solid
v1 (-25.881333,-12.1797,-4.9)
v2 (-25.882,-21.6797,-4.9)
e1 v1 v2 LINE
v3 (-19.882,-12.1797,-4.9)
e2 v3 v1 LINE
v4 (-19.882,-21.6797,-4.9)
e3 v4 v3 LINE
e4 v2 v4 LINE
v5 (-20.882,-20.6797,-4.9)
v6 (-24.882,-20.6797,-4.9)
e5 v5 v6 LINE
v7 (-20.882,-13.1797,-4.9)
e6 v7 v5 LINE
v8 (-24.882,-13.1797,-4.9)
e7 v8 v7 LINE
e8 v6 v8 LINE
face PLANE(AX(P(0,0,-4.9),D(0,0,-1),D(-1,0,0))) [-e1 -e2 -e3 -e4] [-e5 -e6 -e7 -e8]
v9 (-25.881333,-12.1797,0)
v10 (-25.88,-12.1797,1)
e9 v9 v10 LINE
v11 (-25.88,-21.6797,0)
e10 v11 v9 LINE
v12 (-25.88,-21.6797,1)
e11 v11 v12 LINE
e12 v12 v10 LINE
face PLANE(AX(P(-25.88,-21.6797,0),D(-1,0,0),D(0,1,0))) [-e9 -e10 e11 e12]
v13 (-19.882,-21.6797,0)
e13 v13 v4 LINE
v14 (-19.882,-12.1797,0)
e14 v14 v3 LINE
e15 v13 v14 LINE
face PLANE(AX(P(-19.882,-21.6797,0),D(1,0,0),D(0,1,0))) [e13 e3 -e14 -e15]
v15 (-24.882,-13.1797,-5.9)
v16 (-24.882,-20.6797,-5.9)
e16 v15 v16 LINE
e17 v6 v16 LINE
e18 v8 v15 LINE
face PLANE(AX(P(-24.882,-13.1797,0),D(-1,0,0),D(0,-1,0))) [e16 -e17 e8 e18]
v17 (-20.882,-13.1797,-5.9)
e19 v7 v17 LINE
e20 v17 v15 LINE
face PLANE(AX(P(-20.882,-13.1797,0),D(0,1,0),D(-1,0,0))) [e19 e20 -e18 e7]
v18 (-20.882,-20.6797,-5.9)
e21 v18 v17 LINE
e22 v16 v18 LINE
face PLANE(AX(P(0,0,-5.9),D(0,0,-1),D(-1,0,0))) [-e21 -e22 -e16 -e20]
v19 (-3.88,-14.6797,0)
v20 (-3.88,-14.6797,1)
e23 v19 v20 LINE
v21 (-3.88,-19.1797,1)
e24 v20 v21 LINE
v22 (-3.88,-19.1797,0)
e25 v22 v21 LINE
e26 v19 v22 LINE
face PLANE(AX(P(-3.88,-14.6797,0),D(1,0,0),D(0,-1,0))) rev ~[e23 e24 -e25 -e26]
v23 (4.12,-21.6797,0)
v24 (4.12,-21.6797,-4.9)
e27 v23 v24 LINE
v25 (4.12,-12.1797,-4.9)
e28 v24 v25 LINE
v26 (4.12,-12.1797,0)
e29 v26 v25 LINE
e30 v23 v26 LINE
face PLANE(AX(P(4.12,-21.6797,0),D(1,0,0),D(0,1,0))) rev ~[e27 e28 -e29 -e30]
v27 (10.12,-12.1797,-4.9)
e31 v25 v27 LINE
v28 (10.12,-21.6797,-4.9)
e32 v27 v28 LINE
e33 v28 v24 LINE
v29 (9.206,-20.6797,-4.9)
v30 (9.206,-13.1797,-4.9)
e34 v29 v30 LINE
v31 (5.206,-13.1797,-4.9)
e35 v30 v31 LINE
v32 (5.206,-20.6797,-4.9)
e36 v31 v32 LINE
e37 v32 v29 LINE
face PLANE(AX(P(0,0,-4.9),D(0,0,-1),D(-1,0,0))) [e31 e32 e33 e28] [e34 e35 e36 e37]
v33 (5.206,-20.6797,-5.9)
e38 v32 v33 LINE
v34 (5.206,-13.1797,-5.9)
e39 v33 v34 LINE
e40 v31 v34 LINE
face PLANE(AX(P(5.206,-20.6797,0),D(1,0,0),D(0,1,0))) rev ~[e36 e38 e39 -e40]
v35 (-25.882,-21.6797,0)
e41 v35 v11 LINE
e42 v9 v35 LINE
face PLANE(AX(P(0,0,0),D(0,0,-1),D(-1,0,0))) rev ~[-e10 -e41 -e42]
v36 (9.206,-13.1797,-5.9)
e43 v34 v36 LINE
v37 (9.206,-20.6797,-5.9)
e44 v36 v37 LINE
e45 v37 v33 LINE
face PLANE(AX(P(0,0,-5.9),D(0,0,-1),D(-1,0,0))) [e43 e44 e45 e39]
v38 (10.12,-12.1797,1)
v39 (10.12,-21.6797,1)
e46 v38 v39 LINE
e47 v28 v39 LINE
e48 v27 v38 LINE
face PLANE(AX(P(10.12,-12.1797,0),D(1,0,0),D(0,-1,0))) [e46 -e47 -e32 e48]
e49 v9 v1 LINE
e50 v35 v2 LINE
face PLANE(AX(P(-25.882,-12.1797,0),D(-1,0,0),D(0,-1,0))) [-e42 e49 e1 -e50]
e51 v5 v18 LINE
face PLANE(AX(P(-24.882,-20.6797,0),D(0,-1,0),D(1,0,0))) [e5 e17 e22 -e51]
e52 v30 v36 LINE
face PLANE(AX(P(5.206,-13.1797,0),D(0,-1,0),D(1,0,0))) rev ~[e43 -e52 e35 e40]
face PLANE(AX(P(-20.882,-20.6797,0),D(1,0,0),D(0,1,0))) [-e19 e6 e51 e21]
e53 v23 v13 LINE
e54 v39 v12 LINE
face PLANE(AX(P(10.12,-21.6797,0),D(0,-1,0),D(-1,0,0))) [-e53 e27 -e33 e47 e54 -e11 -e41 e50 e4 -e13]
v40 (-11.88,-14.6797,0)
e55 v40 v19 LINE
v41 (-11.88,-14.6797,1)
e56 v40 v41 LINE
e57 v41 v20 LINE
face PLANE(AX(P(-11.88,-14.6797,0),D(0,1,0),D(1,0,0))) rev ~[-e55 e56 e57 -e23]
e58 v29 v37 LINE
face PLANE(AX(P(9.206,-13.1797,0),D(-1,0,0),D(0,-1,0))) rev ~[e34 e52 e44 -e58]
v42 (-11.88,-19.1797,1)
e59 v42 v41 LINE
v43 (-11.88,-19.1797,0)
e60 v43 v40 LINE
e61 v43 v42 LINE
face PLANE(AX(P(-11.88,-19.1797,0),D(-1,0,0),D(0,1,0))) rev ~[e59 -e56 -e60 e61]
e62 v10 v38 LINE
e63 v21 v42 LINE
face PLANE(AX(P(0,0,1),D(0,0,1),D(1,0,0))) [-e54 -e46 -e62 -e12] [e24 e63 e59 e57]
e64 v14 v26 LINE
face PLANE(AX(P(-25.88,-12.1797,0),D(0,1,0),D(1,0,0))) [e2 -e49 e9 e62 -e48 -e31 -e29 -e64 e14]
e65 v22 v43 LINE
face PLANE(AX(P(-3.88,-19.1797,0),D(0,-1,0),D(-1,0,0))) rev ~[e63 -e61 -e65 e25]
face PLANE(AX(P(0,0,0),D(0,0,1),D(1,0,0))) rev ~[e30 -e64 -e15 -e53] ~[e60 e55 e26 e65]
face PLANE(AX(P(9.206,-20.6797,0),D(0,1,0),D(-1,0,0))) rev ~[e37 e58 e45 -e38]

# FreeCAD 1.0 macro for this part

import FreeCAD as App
import Part
import Sketcher
from FreeCAD import Vector

doc = App.newDocument("Part")
body = doc.addObject("PartDesign::Body", "Body")

# Sketch on XY plane
sketch1 = doc.addObject("Sketcher::SketchObject", "Sketch")
body.addObject(sketch1)
sketch1.AttachmentSupport = (doc.XY_Plane, [""])
sketch1.MapMode = "FlatFace"
sketch1.addGeometry([
    Part.LineSegment(Vector(-25.9, -21.7, 0), Vector(10.1, -21.7, 0)),  # 0
    Part.LineSegment(Vector(10.1, -21.7, 0), Vector(10.1, -12.2, 0)),  # 1
    Part.LineSegment(Vector(10.1, -12.2, 0), Vector(-25.9, -12.2, 0)),  # 2
    Part.LineSegment(Vector(-25.9, -12.2, 0), Vector(-25.9, -21.7, 0)),  # 3
    Part.LineSegment(Vector(-3.9, -14.7, 0), Vector(-3.9, -19.2, 0)),  # 4
    Part.LineSegment(Vector(-3.9, -19.2, 0), Vector(-11.9, -19.2, 0)),  # 5
    Part.LineSegment(Vector(-11.9, -19.2, 0), Vector(-11.9, -14.7, 0)),  # 6
    Part.LineSegment(Vector(-11.9, -14.7, 0), Vector(-3.9, -14.7, 0)),  # 7
], False)
sketch1.addConstraint([
    Sketcher.Constraint("Coincident", 0, 2, 1, 1),
    Sketcher.Constraint("Coincident", 1, 2, 2, 1),
    Sketcher.Constraint("Coincident", 2, 2, 3, 1),
    Sketcher.Constraint("Coincident", 3, 2, 0, 1),
    Sketcher.Constraint("Coincident", 4, 2, 5, 1),
    Sketcher.Constraint("Coincident", 5, 2, 6, 1),
    Sketcher.Constraint("Coincident", 6, 2, 7, 1),
    Sketcher.Constraint("Coincident", 7, 2, 4, 1),
    Sketcher.Constraint("Horizontal", 0),
    Sketcher.Constraint("Vertical", 1),
    Sketcher.Constraint("Horizontal", 2),
    Sketcher.Constraint("Vertical", 3),
    Sketcher.Constraint("Vertical", 4),
    Sketcher.Constraint("Horizontal", 5),
    Sketcher.Constraint("Vertical", 6),
    Sketcher.Constraint("Horizontal", 7),
    Sketcher.Constraint("DistanceX", 0, 1, 0, 2, 36.0),
    Sketcher.Constraint("DistanceX", 5, 2, 5, 1, 8.0),
    Sketcher.Constraint("DistanceY", 1, 1, 1, 2, 9.5),
    Sketcher.Constraint("DistanceY", 4, 2, 4, 1, 4.5),
    Sketcher.Constraint("DistanceX", 4, 2, 0, 2, 14.0),
    Sketcher.Constraint("DistanceY", 4, 2, 1, 2, 7.0),
    Sketcher.Constraint("DistanceX", -1, 1, 0, 2, 10.12),
    Sketcher.Constraint("DistanceY", 0, 2, -1, 1, 21.6797),
])
pad1 = doc.addObject("PartDesign::Pad", "Pad")
body.addObject(pad1)
pad1.Profile = sketch1
pad1.Length = 1

# Sketch on XY plane
sketch2 = doc.addObject("Sketcher::SketchObject", "Sketch001")
body.addObject(sketch2)
sketch2.AttachmentSupport = (doc.XY_Plane, [""])
sketch2.MapMode = "FlatFace"
sketch2.addGeometry([
    Part.LineSegment(Vector(4, -22, 0), Vector(4, -12, 0)),  # 0
    Part.LineSegment(Vector(4, -12, 0), Vector(10, -12, 0)),  # 1
    Part.LineSegment(Vector(10, -12, 0), Vector(10, -22, 0)),  # 2
    Part.LineSegment(Vector(10, -22, 0), Vector(4, -22, 0)),  # 3
    Part.LineSegment(Vector(-20, -12, 0), Vector(-20, -22, 0)),  # 4
    Part.LineSegment(Vector(-20, -22, 0), Vector(-26, -22, 0)),  # 5
    Part.LineSegment(Vector(-26, -22, 0), Vector(-26, -12, 0)),  # 6
    Part.LineSegment(Vector(-26, -12, 0), Vector(-20, -12, 0)),  # 7
], False)
sketch2.addConstraint([
    Sketcher.Constraint("Coincident", 0, 2, 1, 1),
    Sketcher.Constraint("Coincident", 1, 2, 2, 1),
    Sketcher.Constraint("Coincident", 2, 2, 3, 1),
    Sketcher.Constraint("Coincident", 3, 2, 0, 1),
    Sketcher.Constraint("Coincident", 4, 2, 5, 1),
    Sketcher.Constraint("Coincident", 5, 2, 6, 1),
    Sketcher.Constraint("Coincident", 6, 2, 7, 1),
    Sketcher.Constraint("Coincident", 7, 2, 4, 1),
    Sketcher.Constraint("Vertical", 0),
    Sketcher.Constraint("Horizontal", 1),
    Sketcher.Constraint("Vertical", 2),
    Sketcher.Constraint("Horizontal", 3),
    Sketcher.Constraint("Vertical", 4),
    Sketcher.Constraint("Horizontal", 5),
    Sketcher.Constraint("Vertical", 6),
    Sketcher.Constraint("Horizontal", 7),
    Sketcher.Constraint("Horizontal", 3, 2, 4, 2),
    Sketcher.Constraint("Horizontal", 1, 2, 6, 2),
    Sketcher.Constraint("Equal", 3, 5),
    Sketcher.Constraint("DistanceX", 1, 1, 1, 2, 6.0),
    Sketcher.Constraint("DistanceY", 0, 1, 0, 2, 9.5),
    Sketcher.Constraint("DistanceX", -1, 1, 0, 2, 4.12),
    Sketcher.Constraint("DistanceX", 4, 2, -1, 1, 19.882),
    Sketcher.Constraint("DistanceY", 0, 2, -1, 1, 12.1797),
])
pad2 = doc.addObject("PartDesign::Pad", "Pad001")
body.addObject(pad2)
pad2.Profile = sketch2
pad2.Length = 4.9
pad2.Reversed = True

# Sketch on XY plane
sketch3 = doc.addObject("Sketcher::SketchObject", "Sketch002")
body.addObject(sketch3)
sketch3.AttachmentSupport = (doc.XY_Plane, [""])
sketch3.MapMode = "FlatFace"
sketch3.addGeometry([
    Part.LineSegment(Vector(-20.9, -20.7, 0), Vector(-24.9, -20.7, 0)),  # 0
    Part.LineSegment(Vector(-24.9, -20.7, 0), Vector(-24.9, -13.2, 0)),  # 1
    Part.LineSegment(Vector(-24.9, -13.2, 0), Vector(-20.9, -13.2, 0)),  # 2
    Part.LineSegment(Vector(-20.9, -13.2, 0), Vector(-20.9, -20.7, 0)),  # 3
    Part.LineSegment(Vector(9.2, -13.2, 0), Vector(9.2, -20.7, 0)),  # 4
    Part.LineSegment(Vector(9.2, -20.7, 0), Vector(5.2, -20.7, 0)),  # 5
    Part.LineSegment(Vector(5.2, -20.7, 0), Vector(5.2, -13.2, 0)),  # 6
    Part.LineSegment(Vector(5.2, -13.2, 0), Vector(9.2, -13.2, 0)),  # 7
], False)
sketch3.addConstraint([
    Sketcher.Constraint("Coincident", 0, 2, 1, 1),
    Sketcher.Constraint("Coincident", 1, 2, 2, 1),
    Sketcher.Constraint("Coincident", 2, 2, 3, 1),
    Sketcher.Constraint("Coincident", 3, 2, 0, 1),
    Sketcher.Constraint("Coincident", 4, 2, 5, 1),
    Sketcher.Constraint("Coincident", 5, 2, 6, 1),
    Sketcher.Constraint("Coincident", 6, 2, 7, 1),
    Sketcher.Constraint("Coincident", 7, 2, 4, 1),
    Sketcher.Constraint("Horizontal", 0),
    Sketcher.Constraint("Vertical", 1),
    Sketcher.Constraint("Horizontal", 2),
    Sketcher.Constraint("Vertical", 3),
    Sketcher.Constraint("Vertical", 4),
    Sketcher.Constraint("Horizontal", 5),
    Sketcher.Constraint("Vertical", 6),
    Sketcher.Constraint("Horizontal", 7),
    Sketcher.Constraint("Horizontal", 3, 2, 4, 2),
    Sketcher.Constraint("Horizontal", 2, 2, 6, 2),
    Sketcher.Constraint("Equal", 2, 5),
    Sketcher.Constraint("DistanceX", 0, 2, 0, 1, 4.0),
    Sketcher.Constraint("DistanceY", 1, 1, 1, 2, 7.5),
    Sketcher.Constraint("DistanceX", 0, 2, -1, 1, 24.882),
    Sketcher.Constraint("DistanceX", -1, 1, 4, 2, 9.206),
    Sketcher.Constraint("DistanceY", 0, 2, -1, 1, 20.6797),
])
pad3 = doc.addObject("PartDesign::Pad", "Pad002")
body.addObject(pad3)
pad3.Profile = sketch3
pad3.Length = 5.9
pad3.Reversed = True

doc.recompute()
